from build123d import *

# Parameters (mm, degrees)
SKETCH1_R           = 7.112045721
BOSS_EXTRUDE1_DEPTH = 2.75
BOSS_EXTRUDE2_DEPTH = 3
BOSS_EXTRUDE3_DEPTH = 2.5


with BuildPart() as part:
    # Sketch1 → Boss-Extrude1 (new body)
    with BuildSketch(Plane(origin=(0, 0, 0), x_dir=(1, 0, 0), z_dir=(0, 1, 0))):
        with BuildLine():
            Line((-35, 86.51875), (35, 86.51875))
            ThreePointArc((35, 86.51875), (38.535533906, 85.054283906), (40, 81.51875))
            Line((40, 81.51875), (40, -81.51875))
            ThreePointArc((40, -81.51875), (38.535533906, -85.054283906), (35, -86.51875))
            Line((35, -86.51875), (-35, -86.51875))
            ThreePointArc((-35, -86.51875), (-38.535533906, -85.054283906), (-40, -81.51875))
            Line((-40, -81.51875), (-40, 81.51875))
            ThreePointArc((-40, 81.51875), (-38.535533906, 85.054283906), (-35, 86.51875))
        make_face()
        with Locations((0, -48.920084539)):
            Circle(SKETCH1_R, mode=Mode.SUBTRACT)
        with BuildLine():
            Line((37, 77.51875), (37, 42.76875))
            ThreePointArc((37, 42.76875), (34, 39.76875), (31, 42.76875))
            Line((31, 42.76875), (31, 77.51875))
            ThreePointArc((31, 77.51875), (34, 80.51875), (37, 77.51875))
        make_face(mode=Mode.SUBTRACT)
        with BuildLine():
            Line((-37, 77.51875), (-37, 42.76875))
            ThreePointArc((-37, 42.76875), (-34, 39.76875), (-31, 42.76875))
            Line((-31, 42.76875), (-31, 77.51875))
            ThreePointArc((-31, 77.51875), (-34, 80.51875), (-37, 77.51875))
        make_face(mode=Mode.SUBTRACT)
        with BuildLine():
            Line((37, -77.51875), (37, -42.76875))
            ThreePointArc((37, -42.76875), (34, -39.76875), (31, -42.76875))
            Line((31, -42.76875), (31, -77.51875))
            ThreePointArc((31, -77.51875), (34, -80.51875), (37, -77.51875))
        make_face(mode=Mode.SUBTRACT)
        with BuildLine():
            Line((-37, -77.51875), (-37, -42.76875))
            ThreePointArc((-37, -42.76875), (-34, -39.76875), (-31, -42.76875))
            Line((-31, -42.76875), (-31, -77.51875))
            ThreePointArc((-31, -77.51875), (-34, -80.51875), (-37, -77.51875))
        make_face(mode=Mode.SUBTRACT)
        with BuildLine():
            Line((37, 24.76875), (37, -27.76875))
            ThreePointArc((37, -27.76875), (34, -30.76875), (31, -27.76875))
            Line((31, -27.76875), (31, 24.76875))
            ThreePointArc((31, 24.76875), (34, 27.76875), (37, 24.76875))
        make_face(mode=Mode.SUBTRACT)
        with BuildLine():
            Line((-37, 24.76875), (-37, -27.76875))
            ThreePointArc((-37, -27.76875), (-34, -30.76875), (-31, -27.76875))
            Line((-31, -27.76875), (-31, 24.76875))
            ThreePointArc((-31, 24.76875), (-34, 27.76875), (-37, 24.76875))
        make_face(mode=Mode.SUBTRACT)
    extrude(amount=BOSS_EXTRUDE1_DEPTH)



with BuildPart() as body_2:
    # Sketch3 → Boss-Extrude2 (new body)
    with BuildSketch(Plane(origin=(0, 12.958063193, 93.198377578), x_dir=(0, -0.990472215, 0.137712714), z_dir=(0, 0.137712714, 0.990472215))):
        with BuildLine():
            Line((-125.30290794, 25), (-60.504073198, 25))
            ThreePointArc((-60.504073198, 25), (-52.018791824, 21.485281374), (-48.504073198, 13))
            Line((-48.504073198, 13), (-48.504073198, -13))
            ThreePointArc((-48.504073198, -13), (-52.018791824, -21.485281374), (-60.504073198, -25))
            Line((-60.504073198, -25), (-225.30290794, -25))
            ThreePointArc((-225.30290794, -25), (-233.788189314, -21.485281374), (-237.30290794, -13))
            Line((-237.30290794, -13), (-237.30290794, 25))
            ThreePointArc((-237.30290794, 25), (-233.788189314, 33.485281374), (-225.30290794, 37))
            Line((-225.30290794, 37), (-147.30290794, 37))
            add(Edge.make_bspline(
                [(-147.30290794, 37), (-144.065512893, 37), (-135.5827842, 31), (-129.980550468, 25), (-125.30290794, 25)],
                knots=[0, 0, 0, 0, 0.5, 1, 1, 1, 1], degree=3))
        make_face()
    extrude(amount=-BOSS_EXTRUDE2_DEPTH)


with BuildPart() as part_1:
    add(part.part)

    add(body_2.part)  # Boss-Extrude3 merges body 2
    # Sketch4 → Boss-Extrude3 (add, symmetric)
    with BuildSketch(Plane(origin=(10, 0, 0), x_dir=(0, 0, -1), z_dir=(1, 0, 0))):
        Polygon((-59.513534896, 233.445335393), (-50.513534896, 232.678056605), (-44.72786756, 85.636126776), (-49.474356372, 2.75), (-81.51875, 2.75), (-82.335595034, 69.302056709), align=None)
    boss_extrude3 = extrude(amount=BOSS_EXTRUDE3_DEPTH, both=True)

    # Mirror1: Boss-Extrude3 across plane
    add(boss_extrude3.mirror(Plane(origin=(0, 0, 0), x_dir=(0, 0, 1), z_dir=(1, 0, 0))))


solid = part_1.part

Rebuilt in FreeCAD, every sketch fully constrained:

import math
import FreeCAD as App
import Part
import Sketcher


def add_polygon(sketch, points):
    """Adds a closed chain of lines whose ends are joined by coincident constraints."""
    first, n = sketch.GeometryCount, len(points)
    for a, b in zip(points, points[1:] + points[:1]):
        sketch.addGeometry(Part.LineSegment(App.Vector(*a, 0), App.Vector(*b, 0)), False)
    for i in range(n):
        sketch.addConstraint(Sketcher.Constraint("Coincident", first + i, 2, first + (i + 1) % n, 1))

doc = App.newDocument("Part")
body = doc.addObject("PartDesign::Body", "Body")

sketch1 = doc.addObject("Sketcher::SketchObject", "Sketch")
body.addObject(sketch1)
sketch1.AttachmentSupport = (doc.XZ_Plane, [""])
sketch1.MapMode = "FlatFace"
sketch1.addGeometry(Part.LineSegment(App.Vector(35, -86.5, 0), App.Vector(-35, -86.5, 0)), False)
sketch1.addGeometry(Part.ArcOfCircle(Part.Circle(App.Vector(-35, -81.5, 0), App.Vector(0, 0, 1), 5), math.radians(180), math.radians(270)), False)
sketch1.addGeometry(Part.LineSegment(App.Vector(-40, -81.5, 0), App.Vector(-40, 81.5, 0)), False)
sketch1.addGeometry(Part.ArcOfCircle(Part.Circle(App.Vector(-35, 81.5, 0), App.Vector(0, 0, 1), 5), math.radians(90), math.radians(180)), False)
sketch1.addGeometry(Part.LineSegment(App.Vector(-35, 86.5, 0), App.Vector(35, 86.5, 0)), False)
sketch1.addGeometry(Part.ArcOfCircle(Part.Circle(App.Vector(35, 81.5, 0), App.Vector(0, 0, 1), 5), math.radians(0), math.radians(90)), False)
sketch1.addGeometry(Part.LineSegment(App.Vector(40, 81.5, 0), App.Vector(40, -81.5, 0)), False)
sketch1.addGeometry(Part.ArcOfCircle(Part.Circle(App.Vector(35, -81.5, 0), App.Vector(0, 0, 1), 5), math.radians(-90), math.radians(0)), False)
sketch1.addGeometry(Part.ArcOfCircle(Part.Circle(App.Vector(34, 77.5, 0), App.Vector(0, 0, 1), 3), math.radians(0), math.radians(180)), False)
sketch1.addGeometry(Part.LineSegment(App.Vector(31, 77.5, 0), App.Vector(31, 42.8, 0)), False)
sketch1.addGeometry(Part.ArcOfCircle(Part.Circle(App.Vector(34, 42.8, 0), App.Vector(0, 0, 1), 3), math.radians(180), math.radians(360)), False)
sketch1.addGeometry(Part.LineSegment(App.Vector(37, 42.8, 0), App.Vector(37, 77.5, 0)), False)
sketch1.addGeometry(Part.LineSegment(App.Vector(37, -24.8, 0), App.Vector(37, 27.8, 0)), False)
sketch1.addGeometry(Part.ArcOfCircle(Part.Circle(App.Vector(34, 27.8, 0), App.Vector(0, 0, 1), 3), math.radians(0), math.radians(180)), False)
sketch1.addGeometry(Part.LineSegment(App.Vector(31, 27.8, 0), App.Vector(31, -24.8, 0)), False)
sketch1.addGeometry(Part.ArcOfCircle(Part.Circle(App.Vector(34, -24.8, 0), App.Vector(0, 0, 1), 3), math.radians(180), math.radians(360)), False)
sketch1.addGeometry(Part.Circle(App.Vector(0, 48.9, 0), App.Vector(0, 0, 1), 7.1), False)
sketch1.addGeometry(Part.LineSegment(App.Vector(-37, 77.5, 0), App.Vector(-37, 42.8, 0)), False)
sketch1.addGeometry(Part.ArcOfCircle(Part.Circle(App.Vector(-34, 42.8, 0), App.Vector(0, 0, 1), 3), math.radians(180), math.radians(360)), False)
sketch1.addGeometry(Part.LineSegment(App.Vector(-31, 42.8, 0), App.Vector(-31, 77.5, 0)), False)
sketch1.addGeometry(Part.ArcOfCircle(Part.Circle(App.Vector(-34, 77.5, 0), App.Vector(0, 0, 1), 3), math.radians(0), math.radians(180)), False)
sketch1.addGeometry(Part.ArcOfCircle(Part.Circle(App.Vector(-34, -24.8, 0), App.Vector(0, 0, 1), 3), math.radians(180), math.radians(360)), False)
sketch1.addGeometry(Part.LineSegment(App.Vector(-31, -24.8, 0), App.Vector(-31, 27.8, 0)), False)
sketch1.addGeometry(Part.ArcOfCircle(Part.Circle(App.Vector(-34, 27.8, 0), App.Vector(0, 0, 1), 3), math.radians(0), math.radians(180)), False)
sketch1.addGeometry(Part.LineSegment(App.Vector(-37, 27.8, 0), App.Vector(-37, -24.8, 0)), False)
sketch1.addGeometry(Part.LineSegment(App.Vector(37, -77.5, 0), App.Vector(37, -42.8, 0)), False)
sketch1.addGeometry(Part.ArcOfCircle(Part.Circle(App.Vector(34, -42.8, 0), App.Vector(0, 0, 1), 3), math.radians(0), math.radians(180)), False)
sketch1.addGeometry(Part.LineSegment(App.Vector(31, -42.8, 0), App.Vector(31, -77.5, 0)), False)
sketch1.addGeometry(Part.ArcOfCircle(Part.Circle(App.Vector(34, -77.5, 0), App.Vector(0, 0, 1), 3), math.radians(180), math.radians(360)), False)
sketch1.addGeometry(Part.ArcOfCircle(Part.Circle(App.Vector(-34, -77.5, 0), App.Vector(0, 0, 1), 3), math.radians(180), math.radians(360)), False)
sketch1.addGeometry(Part.LineSegment(App.Vector(-31, -77.5, 0), App.Vector(-31, -42.8, 0)), False)
sketch1.addGeometry(Part.ArcOfCircle(Part.Circle(App.Vector(-34, -42.8, 0), App.Vector(0, 0, 1), 3), math.radians(0), math.radians(180)), False)
sketch1.addGeometry(Part.LineSegment(App.Vector(-37, -42.8, 0), App.Vector(-37, -77.5, 0)), False)
sketch1.addConstraint(Sketcher.Constraint("Tangent", 0, 2, 1, 2))
sketch1.addConstraint(Sketcher.Constraint("Tangent", 1, 1, 2, 1))
sketch1.addConstraint(Sketcher.Constraint("Tangent", 2, 2, 3, 2))
sketch1.addConstraint(Sketcher.Constraint("Tangent", 3, 1, 4, 1))
sketch1.addConstraint(Sketcher.Constraint("Tangent", 4, 2, 5, 2))
sketch1.addConstraint(Sketcher.Constraint("Tangent", 5, 1, 6, 1))
sketch1.addConstraint(Sketcher.Constraint("Tangent", 6, 2, 7, 2))
sketch1.addConstraint(Sketcher.Constraint("Tangent", 7, 1, 0, 1))
sketch1.addConstraint(Sketcher.Constraint("Tangent", 8, 2, 9, 1))
sketch1.addConstraint(Sketcher.Constraint("Tangent", 9, 2, 10, 1))
sketch1.addConstraint(Sketcher.Constraint("Tangent", 10, 2, 11, 1))
sketch1.addConstraint(Sketcher.Constraint("Tangent", 11, 2, 8, 1))
sketch1.addConstraint(Sketcher.Constraint("Tangent", 12, 2, 13, 1))
sketch1.addConstraint(Sketcher.Constraint("Tangent", 13, 2, 14, 1))
sketch1.addConstraint(Sketcher.Constraint("Tangent", 14, 2, 15, 1))
sketch1.addConstraint(Sketcher.Constraint("Tangent", 15, 2, 12, 1))
sketch1.addConstraint(Sketcher.Constraint("Tangent", 17, 2, 18, 1))
sketch1.addConstraint(Sketcher.Constraint("Tangent", 18, 2, 19, 1))
sketch1.addConstraint(Sketcher.Constraint("Tangent", 19, 2, 20, 1))
sketch1.addConstraint(Sketcher.Constraint("Tangent", 20, 2, 17, 1))
sketch1.addConstraint(Sketcher.Constraint("Tangent", 21, 2, 22, 1))
sketch1.addConstraint(Sketcher.Constraint("Tangent", 22, 2, 23, 1))
sketch1.addConstraint(Sketcher.Constraint("Tangent", 23, 2, 24, 1))
sketch1.addConstraint(Sketcher.Constraint("Tangent", 24, 2, 21, 1))
sketch1.addConstraint(Sketcher.Constraint("Tangent", 25, 2, 26, 1))
sketch1.addConstraint(Sketcher.Constraint("Tangent", 26, 2, 27, 1))
sketch1.addConstraint(Sketcher.Constraint("Tangent", 27, 2, 28, 1))
sketch1.addConstraint(Sketcher.Constraint("Tangent", 28, 2, 25, 1))
sketch1.addConstraint(Sketcher.Constraint("Tangent", 29, 2, 30, 1))
sketch1.addConstraint(Sketcher.Constraint("Tangent", 30, 2, 31, 1))
sketch1.addConstraint(Sketcher.Constraint("Tangent", 31, 2, 32, 1))
sketch1.addConstraint(Sketcher.Constraint("Tangent", 32, 2, 29, 1))
sketch1.addConstraint(Sketcher.Constraint("Horizontal", 0))
sketch1.addConstraint(Sketcher.Constraint("Vertical", 2))
sketch1.addConstraint(Sketcher.Constraint("Horizontal", 4))
sketch1.addConstraint(Sketcher.Constraint("Vertical", 6))
sketch1.addConstraint(Sketcher.Constraint("Vertical", 9))
sketch1.addConstraint(Sketcher.Constraint("Vertical", 11))
sketch1.addConstraint(Sketcher.Constraint("Vertical", 12))
sketch1.addConstraint(Sketcher.Constraint("Vertical", 14))
sketch1.addConstraint(Sketcher.Constraint("Vertical", 17))
sketch1.addConstraint(Sketcher.Constraint("Vertical", 19))
sketch1.addConstraint(Sketcher.Constraint("Vertical", 22))
sketch1.addConstraint(Sketcher.Constraint("Vertical", 24))
sketch1.addConstraint(Sketcher.Constraint("Vertical", 25))
sketch1.addConstraint(Sketcher.Constraint("Vertical", 27))
sketch1.addConstraint(Sketcher.Constraint("Vertical", 30))
sketch1.addConstraint(Sketcher.Constraint("Vertical", 32))
sketch1.addConstraint(Sketcher.Constraint("Equal", 1, 3))
sketch1.addConstraint(Sketcher.Constraint("Equal", 3, 5))
sketch1.addConstraint(Sketcher.Constraint("Equal", 5, 7))
sketch1.addConstraint(Sketcher.Constraint("Equal", 10, 13))
sketch1.addConstraint(Sketcher.Constraint("Equal", 15, 18))
sketch1.addConstraint(Sketcher.Constraint("Equal", 20, 21))
sketch1.addConstraint(Sketcher.Constraint("Equal", 23, 26))
sketch1.addConstraint(Sketcher.Constraint("Equal", 28, 29))
sketch1.addConstraint(Sketcher.Constraint("Symmetric", 1, 3, 5, 3, -1, 1))
sketch1.addConstraint(Sketcher.Constraint("Symmetric", 18, 3, 26, 3, -1, 1))
sketch1.addConstraint(Sketcher.Constraint("Symmetric", 8, 3, 29, 3, -1, 1))
sketch1.addConstraint(Sketcher.Constraint("Symmetric", 10, 3, 18, 3, -2))
sketch1.addConstraint(Sketcher.Constraint("Symmetric", 15, 3, 21, 3, -2))
sketch1.addConstraint(Sketcher.Constraint("PointOnObject", 16, 3, -2))
sketch1.addConstraint(Sketcher.Constraint("Horizontal", 8, 3, 20, 3))
sketch1.addConstraint(Sketcher.Constraint("Horizontal", 13, 3, 23, 3))
sketch1.addConstraint(Sketcher.Constraint("Horizontal", 28, 3, 29, 3))
sketch1.addConstraint(Sketcher.Constraint("Horizontal", 26, 3, 31, 3))
sketch1.addConstraint(Sketcher.Constraint("Vertical", 10, 3, 13, 3))
sketch1.addConstraint(Sketcher.Constraint("Radius", 1, 5.0))
sketch1.addConstraint(Sketcher.Constraint("Radius", 8, 3.0))
sketch1.addConstraint(Sketcher.Constraint("DistanceX", 0, 2, 0, 1, 70.0))
sketch1.addConstraint(Sketcher.Constraint("DistanceX", -1, 1, 8, 3, 34.0))
sketch1.addConstraint(Sketcher.Constraint("DistanceY", 8, 3, 5, 3, 4.0))
sketch1.addConstraint(Sketcher.Constraint("DistanceY", 13, 3, 10, 3, 15.0))
sketch1.addConstraint(Sketcher.Constraint("DistanceY", 26, 3, 15, 3, 18.0))
sketch1.addConstraint(Sketcher.Constraint("DistanceY", 9, 2, 9, 1, 34.75))
sketch1.addConstraint(Sketcher.Constraint("Diameter", 16, 14.224091))
sketch1.addConstraint(Sketcher.Constraint("DistanceY", 2, 1, 2, 2, 163.0375))
sketch1.addConstraint(Sketcher.Constraint("DistanceY", -1, 1, 16, 3, 48.920085))
pad1 = doc.addObject("PartDesign::Pad", "Pad")
body.addObject(pad1)
pad1.Profile = sketch1
pad1.Length = 2.75
pad1.Reversed = True
body2 = doc.addObject("PartDesign::Body", "Body001")

sketch2 = doc.addObject("Sketcher::SketchObject", "Sketch001")
body2.addObject(sketch2)
sketch2.Placement = App.Placement(App.Vector(0, 12.958063, 93.198378), App.Rotation(App.Vector(0, -0.990472215, 0.137712714), App.Vector(1, 0, 0), App.Vector(0, 0.137712714, 0.990472215), "ZXY"))
sketch2.addGeometry(Part.LineSegment(App.Vector(-60.504073, 25, 0), App.Vector(-125.302908, 25, 0)), False)
sketch2.addGeometry(Part.BSplineCurve([App.Vector(-147.302908, 37, 0), App.Vector(-144.065513, 37, 0), App.Vector(-135.582784, 31, 0), App.Vector(-129.980551, 25, 0), App.Vector(-125.302908, 25, 0)], [4, 1, 4], [0, 0.5, 1], False, 3, [1, 1, 1, 1, 1], False), False)
sketch2.addGeometry(Part.LineSegment(App.Vector(-147.302908, 37, 0), App.Vector(-225.302908, 37, 0)), False)
sketch2.addGeometry(Part.ArcOfCircle(Part.Circle(App.Vector(-225.302908, 25, 0), App.Vector(0, 0, 1), 12), math.radians(90), math.radians(180)), False)
sketch2.addGeometry(Part.LineSegment(App.Vector(-237.302908, 25, 0), App.Vector(-237.302908, -13, 0)), False)
sketch2.addGeometry(Part.ArcOfCircle(Part.Circle(App.Vector(-225.302908, -13, 0), App.Vector(0, 0, 1), 12), math.radians(-180), math.radians(-90)), False)
sketch2.addGeometry(Part.LineSegment(App.Vector(-225.302908, -25, 0), App.Vector(-60.504073, -25, 0)), False)
sketch2.addGeometry(Part.ArcOfCircle(Part.Circle(App.Vector(-60.504073, -13, 0), App.Vector(0, 0, 1), 12), math.radians(-90), math.radians(0)), False)
sketch2.addGeometry(Part.LineSegment(App.Vector(-48.504073, -13, 0), App.Vector(-48.504073, 13, 0)), False)
sketch2.addGeometry(Part.ArcOfCircle(Part.Circle(App.Vector(-60.504073, 13, 0), App.Vector(0, 0, 1), 12), math.radians(0), math.radians(90)), False)
sketch2.addConstraint(Sketcher.Constraint("Block", 1))
sketch2.addConstraint(Sketcher.Constraint("Coincident", 0, 2, 1, 2))
sketch2.addConstraint(Sketcher.Constraint("Coincident", 1, 1, 2, 1))
sketch2.addConstraint(Sketcher.Constraint("Tangent", 2, 2, 3, 1))
sketch2.addConstraint(Sketcher.Constraint("Tangent", 3, 2, 4, 1))
sketch2.addConstraint(Sketcher.Constraint("Tangent", 4, 2, 5, 1))
sketch2.addConstraint(Sketcher.Constraint("Tangent", 5, 2, 6, 1))
sketch2.addConstraint(Sketcher.Constraint("Tangent", 6, 2, 7, 1))
sketch2.addConstraint(Sketcher.Constraint("Tangent", 7, 2, 8, 1))
sketch2.addConstraint(Sketcher.Constraint("Tangent", 8, 2, 9, 1))
sketch2.addConstraint(Sketcher.Constraint("Tangent", 9, 2, 0, 1))
sketch2.addConstraint(Sketcher.Constraint("Horizontal", 0))
sketch2.addConstraint(Sketcher.Constraint("Horizontal", 2))
sketch2.addConstraint(Sketcher.Constraint("Vertical", 4))
sketch2.addConstraint(Sketcher.Constraint("Horizontal", 6))
sketch2.addConstraint(Sketcher.Constraint("Vertical", 8))
sketch2.addConstraint(Sketcher.Constraint("Equal", 3, 5))
sketch2.addConstraint(Sketcher.Constraint("Equal", 5, 7))
sketch2.addConstraint(Sketcher.Constraint("Equal", 7, 9))
sketch2.addConstraint(Sketcher.Constraint("Horizontal", 3, 3, 0, 2))
sketch2.addConstraint(Sketcher.Constraint("DistanceX", 2, 2, 2, 1, 78.0))
sketch2.addConstraint(Sketcher.Constraint("DistanceY", 4, 2, 4, 1, 38.0))
sketch2.addConstraint(Sketcher.Constraint("DistanceX", 0, 2, 0, 1, 64.798835))
pad2 = doc.addObject("PartDesign::Pad", "Pad001")
body2.addObject(pad2)
pad2.Profile = sketch2
pad2.Length = 3
pad2.Reversed = True
body.AllowCompound = True
doc.recompute()

boolean = doc.addObject("PartDesign::Boolean", "Boolean")
body.addObject(boolean)
boolean.Type = "Fuse"
boolean.addObjects([body2])

sketch3 = doc.addObject("Sketcher::SketchObject", "Sketch002")
body.addObject(sketch3)
sketch3.AttachmentSupport = (doc.YZ_Plane, [""])
sketch3.MapMode = "FlatFace"
sketch3.AttachmentOffset = App.Placement(App.Vector(0, 0, 10), App.Rotation())
add_polygon(sketch3, [(233, 51), (233, 60), (69, 82), (3, 82), (3, 49), (86, 45)])
sketch3.addConstraint(Sketcher.Constraint("Vertical", 3))
sketch3.addConstraint(Sketcher.Constraint("DistanceY", 5, 2, 0, 2, 9.0))
sketch3.addConstraint(Sketcher.Constraint("DistanceX", -1, 1, 2, 2, 2.75))
sketch3.addConstraint(Sketcher.Constraint("DistanceX", 1, 2, 5, 2, 163.376))
sketch3.addConstraint(Sketcher.Constraint("Distance", 2, 66.557069))
sketch3.addConstraint(Sketcher.Constraint("Distance", 4, 83.02192))
sketch3.addConstraint(Sketcher.Constraint("Distance", 5, 147.15571))
sketch3.addConstraint(Sketcher.Constraint("DistanceY", 3, 2, 3, 1, 32.044394))
sketch3.addConstraint(Sketcher.Constraint("DistanceY", -1, 1, 2, 2, 81.51875))
sketch3.addConstraint(Sketcher.Constraint("DistanceX", 1, 2, 0, 2, 164.143279))
sketch3.addConstraint(Sketcher.Constraint("DistanceY", 0, 2, 1, 2, 22.82206))
sketch3.addConstraint(Sketcher.Constraint("DistanceY", 3, 2, 1, 2, 32.861239))
pad3 = doc.addObject("PartDesign::Pad", "Pad002")
body.addObject(pad3)
pad3.Profile = sketch3
pad3.Length = 5
pad3.Midplane = True
doc.recompute()

mirrored = doc.addObject("PartDesign::Mirrored", "Mirrored")
body.addObject(mirrored)
mirrored.Originals = [pad3]
mirrored.MirrorPlane = (doc.YZ_Plane, [""])
body.Tip = mirrored

doc.recompute()
